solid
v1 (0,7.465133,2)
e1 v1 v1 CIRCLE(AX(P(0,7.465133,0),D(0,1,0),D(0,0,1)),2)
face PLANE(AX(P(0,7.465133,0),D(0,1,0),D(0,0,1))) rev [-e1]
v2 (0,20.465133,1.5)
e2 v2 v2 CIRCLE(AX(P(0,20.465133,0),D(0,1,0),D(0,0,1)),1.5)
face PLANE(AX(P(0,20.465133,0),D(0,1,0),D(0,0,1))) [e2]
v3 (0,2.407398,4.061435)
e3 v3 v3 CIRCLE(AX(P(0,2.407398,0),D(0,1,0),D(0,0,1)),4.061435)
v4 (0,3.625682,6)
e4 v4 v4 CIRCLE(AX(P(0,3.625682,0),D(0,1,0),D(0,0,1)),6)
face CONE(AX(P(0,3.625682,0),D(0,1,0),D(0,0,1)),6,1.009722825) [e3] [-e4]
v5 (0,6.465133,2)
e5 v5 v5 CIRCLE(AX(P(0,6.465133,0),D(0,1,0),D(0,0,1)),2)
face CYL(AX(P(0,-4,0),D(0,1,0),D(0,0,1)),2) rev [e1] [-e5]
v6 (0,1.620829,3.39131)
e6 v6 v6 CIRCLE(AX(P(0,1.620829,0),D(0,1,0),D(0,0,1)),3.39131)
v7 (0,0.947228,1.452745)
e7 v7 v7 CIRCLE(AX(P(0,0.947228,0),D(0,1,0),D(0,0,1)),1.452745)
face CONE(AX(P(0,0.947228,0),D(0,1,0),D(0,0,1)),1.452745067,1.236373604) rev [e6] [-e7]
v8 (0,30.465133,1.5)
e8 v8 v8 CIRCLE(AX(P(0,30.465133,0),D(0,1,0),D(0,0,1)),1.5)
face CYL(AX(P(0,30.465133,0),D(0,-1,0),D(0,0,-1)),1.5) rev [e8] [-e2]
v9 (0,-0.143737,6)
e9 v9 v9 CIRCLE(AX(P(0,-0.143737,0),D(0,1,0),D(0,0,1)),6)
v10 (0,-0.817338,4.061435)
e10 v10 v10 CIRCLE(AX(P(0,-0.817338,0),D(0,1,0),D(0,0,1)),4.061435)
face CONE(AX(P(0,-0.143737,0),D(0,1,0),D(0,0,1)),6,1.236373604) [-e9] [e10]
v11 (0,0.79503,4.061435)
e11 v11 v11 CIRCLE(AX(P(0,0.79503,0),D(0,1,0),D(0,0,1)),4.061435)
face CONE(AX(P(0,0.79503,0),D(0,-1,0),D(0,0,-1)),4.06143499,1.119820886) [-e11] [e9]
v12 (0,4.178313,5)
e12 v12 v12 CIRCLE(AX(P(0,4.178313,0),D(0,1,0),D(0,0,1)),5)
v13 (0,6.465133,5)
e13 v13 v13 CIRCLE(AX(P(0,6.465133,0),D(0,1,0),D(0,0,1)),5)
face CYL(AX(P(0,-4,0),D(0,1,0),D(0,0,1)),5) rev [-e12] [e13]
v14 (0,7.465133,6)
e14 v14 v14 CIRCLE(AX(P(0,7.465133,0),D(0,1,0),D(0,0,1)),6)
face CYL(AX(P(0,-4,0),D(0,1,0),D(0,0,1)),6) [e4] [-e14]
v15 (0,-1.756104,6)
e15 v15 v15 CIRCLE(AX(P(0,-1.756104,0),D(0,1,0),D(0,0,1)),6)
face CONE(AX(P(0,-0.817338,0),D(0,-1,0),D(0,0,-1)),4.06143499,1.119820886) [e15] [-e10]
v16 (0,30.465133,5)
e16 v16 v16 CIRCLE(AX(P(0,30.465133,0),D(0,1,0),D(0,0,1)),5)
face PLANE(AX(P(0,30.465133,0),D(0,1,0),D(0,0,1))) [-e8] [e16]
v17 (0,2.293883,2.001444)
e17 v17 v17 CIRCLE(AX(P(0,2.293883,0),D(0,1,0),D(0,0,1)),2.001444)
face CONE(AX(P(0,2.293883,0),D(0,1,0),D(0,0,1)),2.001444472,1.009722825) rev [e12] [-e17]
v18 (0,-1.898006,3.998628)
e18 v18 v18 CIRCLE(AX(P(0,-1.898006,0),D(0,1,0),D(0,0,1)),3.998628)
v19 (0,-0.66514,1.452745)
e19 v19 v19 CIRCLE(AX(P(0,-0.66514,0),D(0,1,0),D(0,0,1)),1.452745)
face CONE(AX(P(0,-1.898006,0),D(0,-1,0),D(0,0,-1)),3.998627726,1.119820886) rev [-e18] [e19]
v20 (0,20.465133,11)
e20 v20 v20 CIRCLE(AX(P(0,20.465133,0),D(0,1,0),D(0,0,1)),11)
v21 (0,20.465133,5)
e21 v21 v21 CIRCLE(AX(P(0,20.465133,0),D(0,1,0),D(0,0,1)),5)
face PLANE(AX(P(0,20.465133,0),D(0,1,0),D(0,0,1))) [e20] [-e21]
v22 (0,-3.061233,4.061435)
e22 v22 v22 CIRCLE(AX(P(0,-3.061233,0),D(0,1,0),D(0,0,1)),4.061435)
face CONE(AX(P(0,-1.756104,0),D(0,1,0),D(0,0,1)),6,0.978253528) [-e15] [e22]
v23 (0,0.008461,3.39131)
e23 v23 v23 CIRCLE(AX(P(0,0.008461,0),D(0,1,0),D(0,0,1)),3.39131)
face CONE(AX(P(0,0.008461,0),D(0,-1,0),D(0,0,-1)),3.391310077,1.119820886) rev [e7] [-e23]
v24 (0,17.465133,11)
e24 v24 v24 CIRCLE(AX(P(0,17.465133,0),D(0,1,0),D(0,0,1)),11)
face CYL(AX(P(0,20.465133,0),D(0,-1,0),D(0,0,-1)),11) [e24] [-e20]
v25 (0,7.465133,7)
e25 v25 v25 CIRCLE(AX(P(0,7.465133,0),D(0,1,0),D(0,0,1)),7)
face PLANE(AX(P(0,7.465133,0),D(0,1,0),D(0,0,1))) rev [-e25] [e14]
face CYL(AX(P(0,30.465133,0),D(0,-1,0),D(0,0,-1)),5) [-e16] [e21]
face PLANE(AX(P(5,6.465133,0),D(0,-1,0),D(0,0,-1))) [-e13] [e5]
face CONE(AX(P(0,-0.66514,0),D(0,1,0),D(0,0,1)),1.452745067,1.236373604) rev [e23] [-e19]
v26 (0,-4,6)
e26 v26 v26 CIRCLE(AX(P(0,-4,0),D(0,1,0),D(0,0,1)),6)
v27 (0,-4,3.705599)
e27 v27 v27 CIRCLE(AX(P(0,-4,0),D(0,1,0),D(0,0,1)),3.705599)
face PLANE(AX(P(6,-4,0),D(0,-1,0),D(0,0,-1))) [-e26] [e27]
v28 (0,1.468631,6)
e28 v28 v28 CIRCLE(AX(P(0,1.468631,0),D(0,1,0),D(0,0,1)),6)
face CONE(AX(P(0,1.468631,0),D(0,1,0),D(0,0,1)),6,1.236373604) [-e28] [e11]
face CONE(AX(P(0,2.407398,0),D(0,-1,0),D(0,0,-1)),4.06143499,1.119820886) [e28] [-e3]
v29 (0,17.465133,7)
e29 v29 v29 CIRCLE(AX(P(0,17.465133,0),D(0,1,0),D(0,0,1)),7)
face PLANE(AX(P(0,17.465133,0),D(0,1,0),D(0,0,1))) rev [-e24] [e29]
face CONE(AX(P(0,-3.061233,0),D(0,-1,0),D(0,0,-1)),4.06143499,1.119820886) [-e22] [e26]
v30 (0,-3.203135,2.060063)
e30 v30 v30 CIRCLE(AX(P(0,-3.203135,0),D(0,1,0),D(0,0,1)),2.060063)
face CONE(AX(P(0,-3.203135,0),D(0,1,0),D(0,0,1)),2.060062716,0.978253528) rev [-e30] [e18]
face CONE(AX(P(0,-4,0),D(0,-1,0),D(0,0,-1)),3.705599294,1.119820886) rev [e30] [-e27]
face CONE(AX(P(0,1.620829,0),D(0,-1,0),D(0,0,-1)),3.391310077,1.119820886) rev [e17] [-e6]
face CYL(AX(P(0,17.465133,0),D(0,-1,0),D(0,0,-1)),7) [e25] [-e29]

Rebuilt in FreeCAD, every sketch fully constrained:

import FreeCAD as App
import Part
import Sketcher
from FreeCAD import Vector
Q = App.Units.Quantity

doc = App.newDocument("Part")
body = doc.addObject("PartDesign::Body", "Body")

# Sketch on XY plane
sketch1 = doc.addObject("Sketcher::SketchObject", "Sketch")
body.addObject(sketch1)
sketch1.AttachmentSupport = (doc.XY_Plane, [""])
sketch1.MapMode = "FlatFace"
sketch1.addGeometry([
    Part.LineSegment(Vector(6, -4, 0), Vector(3.7, -4, 0)),  # 0
    Part.LineSegment(Vector(3.7, -4, 0), Vector(2.1, -3.2, 0)),  # 1
    Part.LineSegment(Vector(2.1, -3.2, 0), Vector(4, -1.9, 0)),  # 2
    Part.LineSegment(Vector(4, -1.9, 0), Vector(1.5, -0.7, 0)),  # 3
    Part.LineSegment(Vector(1.5, -0.7, 0), Vector(3.4, 0, 0)),  # 4
    Part.LineSegment(Vector(3.4, 0, 0), Vector(1.5, 0.9, 0)),  # 5
    Part.LineSegment(Vector(1.5, 0.9, 0), Vector(3.4, 1.6, 0)),  # 6
    Part.LineSegment(Vector(3.4, 1.6, 0), Vector(2, 2.3, 0)),  # 7
    Part.LineSegment(Vector(2, 2.3, 0), Vector(5, 4.2, 0)),  # 8
    Part.LineSegment(Vector(5, 4.2, 0), Vector(5, 6.5, 0)),  # 9
    Part.LineSegment(Vector(5, 6.5, 0), Vector(2, 6.5, 0)),  # 10
    Part.LineSegment(Vector(2, 6.5, 0), Vector(2, 7.5, 0)),  # 11
    Part.LineSegment(Vector(2, 7.5, 0), Vector(6, 7.5, 0)),  # 12
    Part.LineSegment(Vector(6, 7.5, 0), Vector(6, 3.6, 0)),  # 13
    Part.LineSegment(Vector(6, 3.6, 0), Vector(4.1, 2.4, 0)),  # 14
    Part.LineSegment(Vector(4.1, 2.4, 0), Vector(6, 1.5, 0)),  # 15
    Part.LineSegment(Vector(6, 1.5, 0), Vector(4.1, 0.8, 0)),  # 16
    Part.LineSegment(Vector(4.1, 0.8, 0), Vector(6, -0.1, 0)),  # 17
    Part.LineSegment(Vector(6, -0.1, 0), Vector(4.1, -0.8, 0)),  # 18
    Part.LineSegment(Vector(4.1, -0.8, 0), Vector(6, -1.8, 0)),  # 19
    Part.LineSegment(Vector(6, -1.8, 0), Vector(4.1, -3.1, 0)),  # 20
    Part.LineSegment(Vector(4.1, -3.1, 0), Vector(6, -4, 0)),  # 21
], False)
sketch1.addConstraint([
    Sketcher.Constraint("Coincident", 0, 2, 1, 1),
    Sketcher.Constraint("Coincident", 1, 2, 2, 1),
    Sketcher.Constraint("Coincident", 2, 2, 3, 1),
    Sketcher.Constraint("Coincident", 3, 2, 4, 1),
    Sketcher.Constraint("Coincident", 4, 2, 5, 1),
    Sketcher.Constraint("Coincident", 5, 2, 6, 1),
    Sketcher.Constraint("Coincident", 6, 2, 7, 1),
    Sketcher.Constraint("Coincident", 7, 2, 8, 1),
    Sketcher.Constraint("Coincident", 8, 2, 9, 1),
    Sketcher.Constraint("Coincident", 9, 2, 10, 1),
    Sketcher.Constraint("Coincident", 10, 2, 11, 1),
    Sketcher.Constraint("Coincident", 11, 2, 12, 1),
    Sketcher.Constraint("Coincident", 12, 2, 13, 1),
    Sketcher.Constraint("Coincident", 13, 2, 14, 1),
    Sketcher.Constraint("Coincident", 14, 2, 15, 1),
    Sketcher.Constraint("Coincident", 15, 2, 16, 1),
    Sketcher.Constraint("Coincident", 16, 2, 17, 1),
    Sketcher.Constraint("Coincident", 17, 2, 18, 1),
    Sketcher.Constraint("Coincident", 18, 2, 19, 1),
    Sketcher.Constraint("Coincident", 19, 2, 20, 1),
    Sketcher.Constraint("Coincident", 20, 2, 21, 1),
    Sketcher.Constraint("Coincident", 21, 2, 0, 1),
    Sketcher.Constraint("Horizontal", 0),
    Sketcher.Constraint("Vertical", 9),
    Sketcher.Constraint("Horizontal", 10),
    Sketcher.Constraint("Vertical", 11),
    Sketcher.Constraint("Horizontal", 12),
    Sketcher.Constraint("Vertical", 13),
    Sketcher.Constraint("Parallel", 1, 3),
    Sketcher.Constraint("Parallel", 3, 5),
    Sketcher.Constraint("Parallel", 4, 6),
    Sketcher.Constraint("Parallel", 5, 7),
    Sketcher.Constraint("Parallel", 8, 14),
    Sketcher.Constraint("Parallel", 7, 15),
    Sketcher.Constraint("Parallel", 6, 16),
    Sketcher.Constraint("Parallel", 15, 17),
    Sketcher.Constraint("Parallel", 16, 18),
    Sketcher.Constraint("Parallel", 17, 19),
    Sketcher.Constraint("Parallel", 2, 20),
    Sketcher.Constraint("Parallel", 19, 21),
    Sketcher.Constraint("Vertical", 3, 2, 5, 2),
    Sketcher.Constraint("Vertical", 4, 2, 6, 2),
    Sketcher.Constraint("Vertical", 13, 2, 15, 2),
    Sketcher.Constraint("Vertical", 14, 2, 16, 2),
    Sketcher.Constraint("Vertical", 15, 2, 17, 2),
    Sketcher.Constraint("Vertical", 16, 2, 18, 2),
    Sketcher.Constraint("Vertical", 17, 2, 19, 2),
    Sketcher.Constraint("Vertical", 18, 2, 20, 2),
    Sketcher.Constraint("Vertical", 19, 2, 21, 2),
    Sketcher.Constraint("Equal", 5, 15),
    Sketcher.Constraint("Equal", 2, 20),
    Sketcher.Constraint("DistanceX", 10, 2, 10, 1, Q("3 mm")),
    Sketcher.Constraint("DistanceX", 12, 1, 12, 2, Q("4 mm")),
    Sketcher.Constraint("DistanceY", 11, 1, 11, 2, Q("1 mm")),
    Sketcher.Constraint("DistanceY", 0, 2, -1, 1, Q("4 mm")),
    Sketcher.Constraint("DistanceX", -1, 1, 8, 2, Q("5 mm")),
    Sketcher.Constraint("DistanceX", 0, 2, 0, 1, Q("2.294401 mm")),
    Sketcher.Constraint("DistanceY", 9, 1, 9, 2, Q("2.28682 mm")),
    Sketcher.Constraint("DistanceY", 13, 2, 13, 1, Q("3.839452 mm")),
    Sketcher.Constraint("DistanceY", -1, 1, 14, 2, Q("2.407398 mm")),
    Sketcher.Constraint("DistanceY", 3, 2, 4, 2, Q("0.673601 mm")),
    Sketcher.Constraint("DistanceX", 5, 2, 7, 2, Q("0.548699 mm")),
    Sketcher.Constraint("DistanceY", 7, 2, 13, 2, Q("1.331799 mm")),
    Sketcher.Constraint("DistanceY", 16, 2, 6, 2, Q("0.825798 mm")),
    Sketcher.Constraint("DistanceY", 2, 2, 19, 2, Q("0.141902 mm")),
    Sketcher.Constraint("Distance", 1, Q("1.828328 mm")),
])
revolution = doc.addObject("PartDesign::Revolution", "Revolution")
body.addObject(revolution)
revolution.Profile = sketch1
revolution.ReferenceAxis = (sketch1, ["V_Axis"])
revolution.Angle = 360

# Sketch on XZ plane
sketch2 = doc.addObject("Sketcher::SketchObject", "Sketch001")
body.addObject(sketch2)
sketch2.AttachmentSupport = (doc.XZ_Plane, [""])
sketch2.MapMode = "FlatFace"
sketch2.AttachmentOffset = App.Placement(Vector(0, 0, -7.465133), App.Rotation())
sketch2.addGeometry(Part.Circle(Vector(0, 0, 0), Vector(0, 0, 1), 7), False)
sketch2.addConstraint([
    Sketcher.Constraint("Coincident", 0, 3, -1, 1),
    Sketcher.Constraint("Diameter", 0, Q("14 mm")),
])
pad1 = doc.addObject("PartDesign::Pad", "Pad")
body.addObject(pad1)
pad1.Profile = sketch2
pad1.Length = 10
pad1.Reversed = True

# Sketch on XZ plane
sketch3 = doc.addObject("Sketcher::SketchObject", "Sketch002")
body.addObject(sketch3)
sketch3.AttachmentSupport = (doc.XZ_Plane, [""])
sketch3.MapMode = "FlatFace"
sketch3.AttachmentOffset = App.Placement(Vector(0, 0, -17.465133), App.Rotation())
sketch3.addGeometry(Part.Circle(Vector(0, 0, 0), Vector(0, 0, 1), 11), False)
sketch3.addConstraint([
    Sketcher.Constraint("Coincident", 0, 3, -1, 1),
    Sketcher.Constraint("Diameter", 0, Q("22 mm")),
])
pad2 = doc.addObject("PartDesign::Pad", "Pad001")
body.addObject(pad2)
pad2.Profile = sketch3
pad2.Length = 3
pad2.Reversed = True

# Sketch on XZ plane
sketch4 = doc.addObject("Sketcher::SketchObject", "Sketch003")
body.addObject(sketch4)
sketch4.AttachmentSupport = (doc.XZ_Plane, [""])
sketch4.MapMode = "FlatFace"
sketch4.AttachmentOffset = App.Placement(Vector(0, 0, -20.465133), App.Rotation())
sketch4.addGeometry([
    Part.Circle(Vector(0, 0, 0), Vector(0, 0, 1), 5),
    Part.Circle(Vector(0, 0, 0), Vector(0, 0, 1), 1.5),
], False)
sketch4.addConstraint([
    Sketcher.Constraint("Coincident", 0, 3, -1, 1),
    Sketcher.Constraint("Coincident", 1, 3, -1, 1),
    Sketcher.Constraint("Diameter", 0, Q("10 mm")),
    Sketcher.Constraint("Diameter", 1, Q("3 mm")),
])
pad3 = doc.addObject("PartDesign::Pad", "Pad002")
body.addObject(pad3)
pad3.Profile = sketch4
pad3.Length = 10
pad3.Reversed = True

doc.recompute()
